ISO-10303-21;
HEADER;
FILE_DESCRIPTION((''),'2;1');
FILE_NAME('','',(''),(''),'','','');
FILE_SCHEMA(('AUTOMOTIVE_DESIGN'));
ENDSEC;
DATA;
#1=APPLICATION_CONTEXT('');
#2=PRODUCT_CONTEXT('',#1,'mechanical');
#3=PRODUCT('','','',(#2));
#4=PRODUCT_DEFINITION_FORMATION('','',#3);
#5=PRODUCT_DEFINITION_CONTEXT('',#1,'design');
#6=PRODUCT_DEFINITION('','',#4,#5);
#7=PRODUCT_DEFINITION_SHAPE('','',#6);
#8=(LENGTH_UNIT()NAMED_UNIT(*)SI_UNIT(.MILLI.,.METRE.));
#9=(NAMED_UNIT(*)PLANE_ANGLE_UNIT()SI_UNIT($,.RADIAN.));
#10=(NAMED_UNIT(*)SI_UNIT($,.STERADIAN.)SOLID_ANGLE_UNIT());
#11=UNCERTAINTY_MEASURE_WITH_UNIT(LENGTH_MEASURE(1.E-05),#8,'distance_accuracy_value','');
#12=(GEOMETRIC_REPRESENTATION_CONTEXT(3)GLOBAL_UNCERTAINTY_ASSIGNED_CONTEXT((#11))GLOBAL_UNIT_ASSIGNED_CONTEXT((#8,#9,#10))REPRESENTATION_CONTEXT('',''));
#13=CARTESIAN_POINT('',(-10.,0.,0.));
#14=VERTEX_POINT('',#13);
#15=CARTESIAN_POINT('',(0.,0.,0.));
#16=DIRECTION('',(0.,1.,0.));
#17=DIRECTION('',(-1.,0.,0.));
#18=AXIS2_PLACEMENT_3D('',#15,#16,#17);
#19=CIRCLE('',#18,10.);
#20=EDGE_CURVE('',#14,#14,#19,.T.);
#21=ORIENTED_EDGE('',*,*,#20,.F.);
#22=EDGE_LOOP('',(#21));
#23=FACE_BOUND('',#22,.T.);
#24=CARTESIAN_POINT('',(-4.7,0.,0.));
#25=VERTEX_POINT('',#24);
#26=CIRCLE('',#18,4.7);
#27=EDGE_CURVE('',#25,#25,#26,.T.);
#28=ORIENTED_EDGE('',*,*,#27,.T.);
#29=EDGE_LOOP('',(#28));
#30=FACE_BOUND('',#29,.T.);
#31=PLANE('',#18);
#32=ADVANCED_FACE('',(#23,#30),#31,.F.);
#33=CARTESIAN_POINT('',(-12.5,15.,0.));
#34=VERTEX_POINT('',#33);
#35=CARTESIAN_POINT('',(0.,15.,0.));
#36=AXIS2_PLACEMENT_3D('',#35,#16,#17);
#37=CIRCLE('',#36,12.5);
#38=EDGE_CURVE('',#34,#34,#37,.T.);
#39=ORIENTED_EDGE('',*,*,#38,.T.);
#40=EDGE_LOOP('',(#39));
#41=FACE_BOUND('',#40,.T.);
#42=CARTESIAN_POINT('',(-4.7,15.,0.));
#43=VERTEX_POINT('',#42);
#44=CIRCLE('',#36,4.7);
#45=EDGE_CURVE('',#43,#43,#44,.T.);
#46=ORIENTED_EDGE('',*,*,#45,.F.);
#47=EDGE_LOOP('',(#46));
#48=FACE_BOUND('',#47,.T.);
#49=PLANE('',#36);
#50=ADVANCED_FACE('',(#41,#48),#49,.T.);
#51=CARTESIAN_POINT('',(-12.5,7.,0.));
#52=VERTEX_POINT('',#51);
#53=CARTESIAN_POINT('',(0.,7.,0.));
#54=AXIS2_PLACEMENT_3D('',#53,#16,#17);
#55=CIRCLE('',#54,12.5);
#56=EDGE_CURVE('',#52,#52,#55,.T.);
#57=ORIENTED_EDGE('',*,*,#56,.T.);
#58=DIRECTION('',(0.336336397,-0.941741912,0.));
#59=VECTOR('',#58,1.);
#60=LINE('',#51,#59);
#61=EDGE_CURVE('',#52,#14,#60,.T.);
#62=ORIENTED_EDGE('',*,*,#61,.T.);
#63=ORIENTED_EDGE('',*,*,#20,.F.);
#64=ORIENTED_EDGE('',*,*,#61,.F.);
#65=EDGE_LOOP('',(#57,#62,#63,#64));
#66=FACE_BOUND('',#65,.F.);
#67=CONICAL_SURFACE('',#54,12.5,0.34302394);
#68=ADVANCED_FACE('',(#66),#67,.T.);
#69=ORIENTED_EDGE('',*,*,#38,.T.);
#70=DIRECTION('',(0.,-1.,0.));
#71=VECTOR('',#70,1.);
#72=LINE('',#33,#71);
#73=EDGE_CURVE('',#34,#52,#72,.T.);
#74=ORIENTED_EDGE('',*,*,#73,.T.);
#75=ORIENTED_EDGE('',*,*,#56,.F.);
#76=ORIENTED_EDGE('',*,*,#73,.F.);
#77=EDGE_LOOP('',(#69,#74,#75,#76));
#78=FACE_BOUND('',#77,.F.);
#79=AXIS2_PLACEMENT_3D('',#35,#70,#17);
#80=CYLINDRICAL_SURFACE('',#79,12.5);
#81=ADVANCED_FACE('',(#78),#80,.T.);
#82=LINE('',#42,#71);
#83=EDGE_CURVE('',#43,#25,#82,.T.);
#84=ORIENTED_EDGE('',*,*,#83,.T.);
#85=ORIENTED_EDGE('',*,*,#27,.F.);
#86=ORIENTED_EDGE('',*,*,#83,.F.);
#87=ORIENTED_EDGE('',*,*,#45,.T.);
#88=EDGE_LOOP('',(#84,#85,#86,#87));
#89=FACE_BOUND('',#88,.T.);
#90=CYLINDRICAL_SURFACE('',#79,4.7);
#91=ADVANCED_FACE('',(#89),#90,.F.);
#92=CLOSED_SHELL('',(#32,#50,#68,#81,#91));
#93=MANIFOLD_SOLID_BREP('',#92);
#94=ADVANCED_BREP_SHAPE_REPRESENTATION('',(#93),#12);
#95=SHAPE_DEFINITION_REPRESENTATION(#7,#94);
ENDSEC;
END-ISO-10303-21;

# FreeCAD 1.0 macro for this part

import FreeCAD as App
import Part
import Sketcher
Q = App.Units.Quantity

doc = App.newDocument("Part")
body = doc.addObject("PartDesign::Body", "Body")

sketch1 = body.newObject("Sketcher::SketchObject", "Sketch")
sketch1.AttachmentSupport = (doc.getObject("XY_Plane"), [""])
sketch1.MapMode = "FlatFace"
sketch1.addGeometry([
    Part.LineSegment(App.Vector(-5, 15, 0), App.Vector(-12, 15, 0)),
    Part.LineSegment(App.Vector(-12, 15, 0), App.Vector(-12, 7, 0)),
    Part.LineSegment(App.Vector(-12, 7, 0), App.Vector(-10, 0, 0)),
    Part.LineSegment(App.Vector(-10, 0, 0), App.Vector(-5, 0, 0)),
    Part.LineSegment(App.Vector(-5, 0, 0), App.Vector(-5, 15, 0)),
], False)
sketch1.addConstraint([
    Sketcher.Constraint("Coincident", 0, 2, 1, 1),
    Sketcher.Constraint("Coincident", 1, 2, 2, 1),
    Sketcher.Constraint("Coincident", 2, 2, 3, 1),
    Sketcher.Constraint("Coincident", 3, 2, 4, 1),
    Sketcher.Constraint("Coincident", 4, 2, 0, 1),
    Sketcher.Constraint("Horizontal", 0),
    Sketcher.Constraint("Vertical", 1),
    Sketcher.Constraint("Horizontal", 3),
    Sketcher.Constraint("Vertical", 4),
    Sketcher.Constraint("PointOnObject", 2, 2, -1),
    Sketcher.Constraint("DistanceY", 1, 2, 1, 1, Q("8 mm")),
    Sketcher.Constraint("DistanceY", -1, 1, 1, 2, Q("7 mm")),
    Sketcher.Constraint("DistanceX", 2, 2, -1, 1, Q("10 mm")),
    Sketcher.Constraint("DistanceX", 0, 2, -1, 1, Q("12.5 mm")),
    Sketcher.Constraint("DistanceX", 3, 2, -1, 1, Q("4.7 mm")),
])
revolution = body.newObject("PartDesign::Revolution", "Revolution")
revolution.Profile = sketch1
revolution.ReferenceAxis = (sketch1, ["V_Axis"])
revolution.Angle = 360

doc.recompute()
